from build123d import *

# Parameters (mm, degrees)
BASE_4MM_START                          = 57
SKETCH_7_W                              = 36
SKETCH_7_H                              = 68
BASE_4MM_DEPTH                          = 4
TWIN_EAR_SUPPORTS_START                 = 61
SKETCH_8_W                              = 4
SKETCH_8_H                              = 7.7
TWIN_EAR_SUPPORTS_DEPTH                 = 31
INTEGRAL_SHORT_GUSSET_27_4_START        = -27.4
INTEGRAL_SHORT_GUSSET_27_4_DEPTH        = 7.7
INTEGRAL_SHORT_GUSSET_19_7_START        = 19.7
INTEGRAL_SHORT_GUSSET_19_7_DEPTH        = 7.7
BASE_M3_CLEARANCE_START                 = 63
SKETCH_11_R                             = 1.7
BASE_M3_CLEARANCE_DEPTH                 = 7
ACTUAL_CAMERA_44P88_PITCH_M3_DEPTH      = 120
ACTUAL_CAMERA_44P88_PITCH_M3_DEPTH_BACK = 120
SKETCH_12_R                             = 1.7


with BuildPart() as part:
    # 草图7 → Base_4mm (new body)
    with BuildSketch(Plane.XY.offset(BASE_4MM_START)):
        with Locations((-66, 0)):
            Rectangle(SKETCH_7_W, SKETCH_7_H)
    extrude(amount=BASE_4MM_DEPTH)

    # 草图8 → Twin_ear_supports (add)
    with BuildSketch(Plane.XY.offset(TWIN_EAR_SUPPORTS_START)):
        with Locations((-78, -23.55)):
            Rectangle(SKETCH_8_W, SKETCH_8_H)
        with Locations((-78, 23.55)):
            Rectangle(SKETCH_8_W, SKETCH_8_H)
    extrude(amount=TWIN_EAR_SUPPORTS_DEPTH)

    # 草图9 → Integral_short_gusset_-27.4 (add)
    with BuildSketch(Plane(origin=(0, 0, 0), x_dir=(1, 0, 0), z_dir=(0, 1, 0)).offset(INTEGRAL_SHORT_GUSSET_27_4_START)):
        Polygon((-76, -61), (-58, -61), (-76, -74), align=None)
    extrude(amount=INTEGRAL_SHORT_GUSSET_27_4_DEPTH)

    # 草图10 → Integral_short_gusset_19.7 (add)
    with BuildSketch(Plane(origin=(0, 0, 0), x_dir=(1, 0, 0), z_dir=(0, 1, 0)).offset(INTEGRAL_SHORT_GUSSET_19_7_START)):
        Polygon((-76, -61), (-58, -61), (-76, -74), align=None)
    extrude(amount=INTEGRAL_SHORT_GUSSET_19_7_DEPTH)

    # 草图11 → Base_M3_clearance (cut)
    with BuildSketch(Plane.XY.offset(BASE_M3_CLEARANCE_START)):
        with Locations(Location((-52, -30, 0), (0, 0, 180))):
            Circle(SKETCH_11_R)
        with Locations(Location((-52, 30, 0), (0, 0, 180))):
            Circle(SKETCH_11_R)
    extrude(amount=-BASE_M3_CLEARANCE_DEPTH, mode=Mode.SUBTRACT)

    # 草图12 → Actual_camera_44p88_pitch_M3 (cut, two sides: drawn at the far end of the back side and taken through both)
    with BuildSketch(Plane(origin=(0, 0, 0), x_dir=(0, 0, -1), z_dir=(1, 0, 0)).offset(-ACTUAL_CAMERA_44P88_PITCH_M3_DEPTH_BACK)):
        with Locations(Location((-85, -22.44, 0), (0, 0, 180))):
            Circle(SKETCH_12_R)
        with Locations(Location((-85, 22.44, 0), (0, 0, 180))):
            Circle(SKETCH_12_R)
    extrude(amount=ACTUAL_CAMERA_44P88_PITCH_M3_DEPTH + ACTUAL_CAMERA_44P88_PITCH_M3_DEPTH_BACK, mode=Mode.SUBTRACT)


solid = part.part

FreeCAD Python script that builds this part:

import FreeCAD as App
import Part
import Sketcher


def add_polygon(sketch, points):
    """Adds a closed chain of lines whose ends are joined by coincident constraints."""
    first, n = sketch.GeometryCount, len(points)
    for a, b in zip(points, points[1:] + points[:1]):
        sketch.addGeometry(Part.LineSegment(App.Vector(*a, 0), App.Vector(*b, 0)), False)
    for i in range(n):
        sketch.addConstraint(Sketcher.Constraint("Coincident", first + i, 2, first + (i + 1) % n, 1))

doc = App.newDocument("Part")
body = doc.addObject("PartDesign::Body", "Body")

# Sketch on XY plane
sketch1 = body.newObject("Sketcher::SketchObject", "Sketch")
sketch1.AttachmentSupport = (doc.getObject("XY_Plane"), [""])
sketch1.MapMode = "FlatFace"
sketch1.AttachmentOffset = App.Placement(App.Vector(0, 0, 57), App.Rotation())
add_polygon(sketch1, [(-84, 34), (-84, -34), (-48, -34), (-48, 34)])  # lines 0-3
sketch1.addConstraint([
    Sketcher.Constraint("Vertical", 0),
    Sketcher.Constraint("Horizontal", 1),
    Sketcher.Constraint("Vertical", 2),
    Sketcher.Constraint("Horizontal", 3),
    Sketcher.Constraint("DistanceX", 1, 1, 1, 2, 36.0),
    Sketcher.Constraint("DistanceY", 0, 2, 0, 1, 68.0),
    Sketcher.Constraint("DistanceX", 0, 2, -1, 1, 84.0),
    Sketcher.Constraint("DistanceY", 0, 2, -1, 1, 34.0),
])
pad1 = body.newObject("PartDesign::Pad", "Pad")
pad1.Profile = sketch1
pad1.Length = 4

# Sketch on XY plane
sketch2 = body.newObject("Sketcher::SketchObject", "Sketch001")
sketch2.AttachmentSupport = (doc.getObject("XY_Plane"), [""])
sketch2.MapMode = "FlatFace"
sketch2.AttachmentOffset = App.Placement(App.Vector(0, 0, 61), App.Rotation())
add_polygon(sketch2, [(-80, -19.7), (-80, -27.4), (-76, -27.4), (-76, -19.7)])  # lines 0-3
add_polygon(sketch2, [(-80, 27.4), (-80, 19.7), (-76, 19.7), (-76, 27.4)])  # lines 4-7
sketch2.addConstraint([
    Sketcher.Constraint("Vertical", 0),
    Sketcher.Constraint("Horizontal", 1),
    Sketcher.Constraint("Vertical", 2),
    Sketcher.Constraint("Horizontal", 3),
    Sketcher.Constraint("Vertical", 4),
    Sketcher.Constraint("Horizontal", 5),
    Sketcher.Constraint("Vertical", 6),
    Sketcher.Constraint("Horizontal", 7),
    Sketcher.Constraint("Symmetric", 3, 2, 4, 2, -1),
    Sketcher.Constraint("Symmetric", 1, 2, 6, 2, -1),
    Sketcher.Constraint("DistanceX", 1, 1, 1, 2, 4.0),
    Sketcher.Constraint("DistanceY", 0, 2, 0, 1, 7.7),
    Sketcher.Constraint("DistanceX", 0, 2, -1, 1, 80.0),
    Sketcher.Constraint("DistanceY", 0, 2, -1, 1, 27.4),
])
pad2 = body.newObject("PartDesign::Pad", "Pad001")
pad2.Profile = sketch2
pad2.Length = 31

# Sketch on XZ plane
sketch3 = body.newObject("Sketcher::SketchObject", "Sketch002")
sketch3.AttachmentSupport = (doc.getObject("XZ_Plane"), [""])
sketch3.MapMode = "FlatFace"
sketch3.AttachmentOffset = App.Placement(App.Vector(0, 0, 27.4), App.Rotation())
add_polygon(sketch3, [(-58, 61), (-76, 61), (-76, 74)])  # lines 0-2
sketch3.addConstraint([
    Sketcher.Constraint("Horizontal", 0),
    Sketcher.Constraint("Vertical", 1),
    Sketcher.Constraint("DistanceX", 0, 2, 0, 1, 18.0),
    Sketcher.Constraint("DistanceY", 1, 1, 1, 2, 13.0),
    Sketcher.Constraint("DistanceX", 0, 2, -1, 1, 76.0),
    Sketcher.Constraint("DistanceY", -1, 1, 0, 2, 61.0),
])
pad3 = body.newObject("PartDesign::Pad", "Pad002")
pad3.Profile = sketch3
pad3.Length = 7.7
pad3.Reversed = True

# Sketch on XZ plane
sketch4 = body.newObject("Sketcher::SketchObject", "Sketch003")
sketch4.AttachmentSupport = (doc.getObject("XZ_Plane"), [""])
sketch4.MapMode = "FlatFace"
sketch4.AttachmentOffset = App.Placement(App.Vector(0, 0, -19.7), App.Rotation())
add_polygon(sketch4, [(-58, 61), (-76, 61), (-76, 74)])  # lines 0-2
sketch4.addConstraint([
    Sketcher.Constraint("Horizontal", 0),
    Sketcher.Constraint("Vertical", 1),
    Sketcher.Constraint("DistanceX", 0, 2, 0, 1, 18.0),
    Sketcher.Constraint("DistanceY", 1, 1, 1, 2, 13.0),
    Sketcher.Constraint("DistanceX", 0, 2, -1, 1, 76.0),
    Sketcher.Constraint("DistanceY", -1, 1, 0, 2, 61.0),
])
pad4 = body.newObject("PartDesign::Pad", "Pad003")
pad4.Profile = sketch4
pad4.Length = 7.7
pad4.Reversed = True

# Sketch on XY plane
sketch5 = body.newObject("Sketcher::SketchObject", "Sketch004")
sketch5.AttachmentSupport = (doc.getObject("XY_Plane"), [""])
sketch5.MapMode = "FlatFace"
sketch5.AttachmentOffset = App.Placement(App.Vector(0, 0, 63), App.Rotation())
sketch5.addGeometry([
    Part.Circle(App.Vector(-52, -30, 0), App.Vector(0, 0, 1), 1.7),
    Part.Circle(App.Vector(-52, 30, 0), App.Vector(0, 0, 1), 1.7),
], False)
sketch5.addConstraint([
    Sketcher.Constraint("Equal", 0, 1),
    Sketcher.Constraint("Symmetric", 0, 3, 1, 3, -1),
    Sketcher.Constraint("Diameter", 0, 3.4),
    Sketcher.Constraint("DistanceX", 0, 3, -1, 1, 52.0),
    Sketcher.Constraint("DistanceY", 0, 3, -1, 1, 30.0),
])
pocket1 = body.newObject("PartDesign::Pocket", "Pocket")
pocket1.Profile = sketch5
pocket1.Length = 7

# Sketch on YZ plane
sketch6 = body.newObject("Sketcher::SketchObject", "Sketch005")
sketch6.AttachmentSupport = (doc.getObject("YZ_Plane"), [""])
sketch6.MapMode = "FlatFace"
sketch6.addGeometry([
    Part.Circle(App.Vector(-22.4, 85, 0), App.Vector(0, 0, 1), 1.7),
    Part.Circle(App.Vector(22.4, 85, 0), App.Vector(0, 0, 1), 1.7),
], False)
sketch6.addConstraint([
    Sketcher.Constraint("Equal", 0, 1),
    Sketcher.Constraint("Symmetric", 0, 3, 1, 3, -2),
    Sketcher.Constraint("Diameter", 0, 3.4),
    Sketcher.Constraint("DistanceY", -1, 1, 0, 3, 85.0),
    Sketcher.Constraint("DistanceX", 0, 3, -1, 1, 22.44),
])
pocket2 = body.newObject("PartDesign::Pocket", "Pocket001")
pocket2.Profile = sketch6
pocket2.Type = "ThroughAll"
pocket2.Midplane = True

doc.recompute()
